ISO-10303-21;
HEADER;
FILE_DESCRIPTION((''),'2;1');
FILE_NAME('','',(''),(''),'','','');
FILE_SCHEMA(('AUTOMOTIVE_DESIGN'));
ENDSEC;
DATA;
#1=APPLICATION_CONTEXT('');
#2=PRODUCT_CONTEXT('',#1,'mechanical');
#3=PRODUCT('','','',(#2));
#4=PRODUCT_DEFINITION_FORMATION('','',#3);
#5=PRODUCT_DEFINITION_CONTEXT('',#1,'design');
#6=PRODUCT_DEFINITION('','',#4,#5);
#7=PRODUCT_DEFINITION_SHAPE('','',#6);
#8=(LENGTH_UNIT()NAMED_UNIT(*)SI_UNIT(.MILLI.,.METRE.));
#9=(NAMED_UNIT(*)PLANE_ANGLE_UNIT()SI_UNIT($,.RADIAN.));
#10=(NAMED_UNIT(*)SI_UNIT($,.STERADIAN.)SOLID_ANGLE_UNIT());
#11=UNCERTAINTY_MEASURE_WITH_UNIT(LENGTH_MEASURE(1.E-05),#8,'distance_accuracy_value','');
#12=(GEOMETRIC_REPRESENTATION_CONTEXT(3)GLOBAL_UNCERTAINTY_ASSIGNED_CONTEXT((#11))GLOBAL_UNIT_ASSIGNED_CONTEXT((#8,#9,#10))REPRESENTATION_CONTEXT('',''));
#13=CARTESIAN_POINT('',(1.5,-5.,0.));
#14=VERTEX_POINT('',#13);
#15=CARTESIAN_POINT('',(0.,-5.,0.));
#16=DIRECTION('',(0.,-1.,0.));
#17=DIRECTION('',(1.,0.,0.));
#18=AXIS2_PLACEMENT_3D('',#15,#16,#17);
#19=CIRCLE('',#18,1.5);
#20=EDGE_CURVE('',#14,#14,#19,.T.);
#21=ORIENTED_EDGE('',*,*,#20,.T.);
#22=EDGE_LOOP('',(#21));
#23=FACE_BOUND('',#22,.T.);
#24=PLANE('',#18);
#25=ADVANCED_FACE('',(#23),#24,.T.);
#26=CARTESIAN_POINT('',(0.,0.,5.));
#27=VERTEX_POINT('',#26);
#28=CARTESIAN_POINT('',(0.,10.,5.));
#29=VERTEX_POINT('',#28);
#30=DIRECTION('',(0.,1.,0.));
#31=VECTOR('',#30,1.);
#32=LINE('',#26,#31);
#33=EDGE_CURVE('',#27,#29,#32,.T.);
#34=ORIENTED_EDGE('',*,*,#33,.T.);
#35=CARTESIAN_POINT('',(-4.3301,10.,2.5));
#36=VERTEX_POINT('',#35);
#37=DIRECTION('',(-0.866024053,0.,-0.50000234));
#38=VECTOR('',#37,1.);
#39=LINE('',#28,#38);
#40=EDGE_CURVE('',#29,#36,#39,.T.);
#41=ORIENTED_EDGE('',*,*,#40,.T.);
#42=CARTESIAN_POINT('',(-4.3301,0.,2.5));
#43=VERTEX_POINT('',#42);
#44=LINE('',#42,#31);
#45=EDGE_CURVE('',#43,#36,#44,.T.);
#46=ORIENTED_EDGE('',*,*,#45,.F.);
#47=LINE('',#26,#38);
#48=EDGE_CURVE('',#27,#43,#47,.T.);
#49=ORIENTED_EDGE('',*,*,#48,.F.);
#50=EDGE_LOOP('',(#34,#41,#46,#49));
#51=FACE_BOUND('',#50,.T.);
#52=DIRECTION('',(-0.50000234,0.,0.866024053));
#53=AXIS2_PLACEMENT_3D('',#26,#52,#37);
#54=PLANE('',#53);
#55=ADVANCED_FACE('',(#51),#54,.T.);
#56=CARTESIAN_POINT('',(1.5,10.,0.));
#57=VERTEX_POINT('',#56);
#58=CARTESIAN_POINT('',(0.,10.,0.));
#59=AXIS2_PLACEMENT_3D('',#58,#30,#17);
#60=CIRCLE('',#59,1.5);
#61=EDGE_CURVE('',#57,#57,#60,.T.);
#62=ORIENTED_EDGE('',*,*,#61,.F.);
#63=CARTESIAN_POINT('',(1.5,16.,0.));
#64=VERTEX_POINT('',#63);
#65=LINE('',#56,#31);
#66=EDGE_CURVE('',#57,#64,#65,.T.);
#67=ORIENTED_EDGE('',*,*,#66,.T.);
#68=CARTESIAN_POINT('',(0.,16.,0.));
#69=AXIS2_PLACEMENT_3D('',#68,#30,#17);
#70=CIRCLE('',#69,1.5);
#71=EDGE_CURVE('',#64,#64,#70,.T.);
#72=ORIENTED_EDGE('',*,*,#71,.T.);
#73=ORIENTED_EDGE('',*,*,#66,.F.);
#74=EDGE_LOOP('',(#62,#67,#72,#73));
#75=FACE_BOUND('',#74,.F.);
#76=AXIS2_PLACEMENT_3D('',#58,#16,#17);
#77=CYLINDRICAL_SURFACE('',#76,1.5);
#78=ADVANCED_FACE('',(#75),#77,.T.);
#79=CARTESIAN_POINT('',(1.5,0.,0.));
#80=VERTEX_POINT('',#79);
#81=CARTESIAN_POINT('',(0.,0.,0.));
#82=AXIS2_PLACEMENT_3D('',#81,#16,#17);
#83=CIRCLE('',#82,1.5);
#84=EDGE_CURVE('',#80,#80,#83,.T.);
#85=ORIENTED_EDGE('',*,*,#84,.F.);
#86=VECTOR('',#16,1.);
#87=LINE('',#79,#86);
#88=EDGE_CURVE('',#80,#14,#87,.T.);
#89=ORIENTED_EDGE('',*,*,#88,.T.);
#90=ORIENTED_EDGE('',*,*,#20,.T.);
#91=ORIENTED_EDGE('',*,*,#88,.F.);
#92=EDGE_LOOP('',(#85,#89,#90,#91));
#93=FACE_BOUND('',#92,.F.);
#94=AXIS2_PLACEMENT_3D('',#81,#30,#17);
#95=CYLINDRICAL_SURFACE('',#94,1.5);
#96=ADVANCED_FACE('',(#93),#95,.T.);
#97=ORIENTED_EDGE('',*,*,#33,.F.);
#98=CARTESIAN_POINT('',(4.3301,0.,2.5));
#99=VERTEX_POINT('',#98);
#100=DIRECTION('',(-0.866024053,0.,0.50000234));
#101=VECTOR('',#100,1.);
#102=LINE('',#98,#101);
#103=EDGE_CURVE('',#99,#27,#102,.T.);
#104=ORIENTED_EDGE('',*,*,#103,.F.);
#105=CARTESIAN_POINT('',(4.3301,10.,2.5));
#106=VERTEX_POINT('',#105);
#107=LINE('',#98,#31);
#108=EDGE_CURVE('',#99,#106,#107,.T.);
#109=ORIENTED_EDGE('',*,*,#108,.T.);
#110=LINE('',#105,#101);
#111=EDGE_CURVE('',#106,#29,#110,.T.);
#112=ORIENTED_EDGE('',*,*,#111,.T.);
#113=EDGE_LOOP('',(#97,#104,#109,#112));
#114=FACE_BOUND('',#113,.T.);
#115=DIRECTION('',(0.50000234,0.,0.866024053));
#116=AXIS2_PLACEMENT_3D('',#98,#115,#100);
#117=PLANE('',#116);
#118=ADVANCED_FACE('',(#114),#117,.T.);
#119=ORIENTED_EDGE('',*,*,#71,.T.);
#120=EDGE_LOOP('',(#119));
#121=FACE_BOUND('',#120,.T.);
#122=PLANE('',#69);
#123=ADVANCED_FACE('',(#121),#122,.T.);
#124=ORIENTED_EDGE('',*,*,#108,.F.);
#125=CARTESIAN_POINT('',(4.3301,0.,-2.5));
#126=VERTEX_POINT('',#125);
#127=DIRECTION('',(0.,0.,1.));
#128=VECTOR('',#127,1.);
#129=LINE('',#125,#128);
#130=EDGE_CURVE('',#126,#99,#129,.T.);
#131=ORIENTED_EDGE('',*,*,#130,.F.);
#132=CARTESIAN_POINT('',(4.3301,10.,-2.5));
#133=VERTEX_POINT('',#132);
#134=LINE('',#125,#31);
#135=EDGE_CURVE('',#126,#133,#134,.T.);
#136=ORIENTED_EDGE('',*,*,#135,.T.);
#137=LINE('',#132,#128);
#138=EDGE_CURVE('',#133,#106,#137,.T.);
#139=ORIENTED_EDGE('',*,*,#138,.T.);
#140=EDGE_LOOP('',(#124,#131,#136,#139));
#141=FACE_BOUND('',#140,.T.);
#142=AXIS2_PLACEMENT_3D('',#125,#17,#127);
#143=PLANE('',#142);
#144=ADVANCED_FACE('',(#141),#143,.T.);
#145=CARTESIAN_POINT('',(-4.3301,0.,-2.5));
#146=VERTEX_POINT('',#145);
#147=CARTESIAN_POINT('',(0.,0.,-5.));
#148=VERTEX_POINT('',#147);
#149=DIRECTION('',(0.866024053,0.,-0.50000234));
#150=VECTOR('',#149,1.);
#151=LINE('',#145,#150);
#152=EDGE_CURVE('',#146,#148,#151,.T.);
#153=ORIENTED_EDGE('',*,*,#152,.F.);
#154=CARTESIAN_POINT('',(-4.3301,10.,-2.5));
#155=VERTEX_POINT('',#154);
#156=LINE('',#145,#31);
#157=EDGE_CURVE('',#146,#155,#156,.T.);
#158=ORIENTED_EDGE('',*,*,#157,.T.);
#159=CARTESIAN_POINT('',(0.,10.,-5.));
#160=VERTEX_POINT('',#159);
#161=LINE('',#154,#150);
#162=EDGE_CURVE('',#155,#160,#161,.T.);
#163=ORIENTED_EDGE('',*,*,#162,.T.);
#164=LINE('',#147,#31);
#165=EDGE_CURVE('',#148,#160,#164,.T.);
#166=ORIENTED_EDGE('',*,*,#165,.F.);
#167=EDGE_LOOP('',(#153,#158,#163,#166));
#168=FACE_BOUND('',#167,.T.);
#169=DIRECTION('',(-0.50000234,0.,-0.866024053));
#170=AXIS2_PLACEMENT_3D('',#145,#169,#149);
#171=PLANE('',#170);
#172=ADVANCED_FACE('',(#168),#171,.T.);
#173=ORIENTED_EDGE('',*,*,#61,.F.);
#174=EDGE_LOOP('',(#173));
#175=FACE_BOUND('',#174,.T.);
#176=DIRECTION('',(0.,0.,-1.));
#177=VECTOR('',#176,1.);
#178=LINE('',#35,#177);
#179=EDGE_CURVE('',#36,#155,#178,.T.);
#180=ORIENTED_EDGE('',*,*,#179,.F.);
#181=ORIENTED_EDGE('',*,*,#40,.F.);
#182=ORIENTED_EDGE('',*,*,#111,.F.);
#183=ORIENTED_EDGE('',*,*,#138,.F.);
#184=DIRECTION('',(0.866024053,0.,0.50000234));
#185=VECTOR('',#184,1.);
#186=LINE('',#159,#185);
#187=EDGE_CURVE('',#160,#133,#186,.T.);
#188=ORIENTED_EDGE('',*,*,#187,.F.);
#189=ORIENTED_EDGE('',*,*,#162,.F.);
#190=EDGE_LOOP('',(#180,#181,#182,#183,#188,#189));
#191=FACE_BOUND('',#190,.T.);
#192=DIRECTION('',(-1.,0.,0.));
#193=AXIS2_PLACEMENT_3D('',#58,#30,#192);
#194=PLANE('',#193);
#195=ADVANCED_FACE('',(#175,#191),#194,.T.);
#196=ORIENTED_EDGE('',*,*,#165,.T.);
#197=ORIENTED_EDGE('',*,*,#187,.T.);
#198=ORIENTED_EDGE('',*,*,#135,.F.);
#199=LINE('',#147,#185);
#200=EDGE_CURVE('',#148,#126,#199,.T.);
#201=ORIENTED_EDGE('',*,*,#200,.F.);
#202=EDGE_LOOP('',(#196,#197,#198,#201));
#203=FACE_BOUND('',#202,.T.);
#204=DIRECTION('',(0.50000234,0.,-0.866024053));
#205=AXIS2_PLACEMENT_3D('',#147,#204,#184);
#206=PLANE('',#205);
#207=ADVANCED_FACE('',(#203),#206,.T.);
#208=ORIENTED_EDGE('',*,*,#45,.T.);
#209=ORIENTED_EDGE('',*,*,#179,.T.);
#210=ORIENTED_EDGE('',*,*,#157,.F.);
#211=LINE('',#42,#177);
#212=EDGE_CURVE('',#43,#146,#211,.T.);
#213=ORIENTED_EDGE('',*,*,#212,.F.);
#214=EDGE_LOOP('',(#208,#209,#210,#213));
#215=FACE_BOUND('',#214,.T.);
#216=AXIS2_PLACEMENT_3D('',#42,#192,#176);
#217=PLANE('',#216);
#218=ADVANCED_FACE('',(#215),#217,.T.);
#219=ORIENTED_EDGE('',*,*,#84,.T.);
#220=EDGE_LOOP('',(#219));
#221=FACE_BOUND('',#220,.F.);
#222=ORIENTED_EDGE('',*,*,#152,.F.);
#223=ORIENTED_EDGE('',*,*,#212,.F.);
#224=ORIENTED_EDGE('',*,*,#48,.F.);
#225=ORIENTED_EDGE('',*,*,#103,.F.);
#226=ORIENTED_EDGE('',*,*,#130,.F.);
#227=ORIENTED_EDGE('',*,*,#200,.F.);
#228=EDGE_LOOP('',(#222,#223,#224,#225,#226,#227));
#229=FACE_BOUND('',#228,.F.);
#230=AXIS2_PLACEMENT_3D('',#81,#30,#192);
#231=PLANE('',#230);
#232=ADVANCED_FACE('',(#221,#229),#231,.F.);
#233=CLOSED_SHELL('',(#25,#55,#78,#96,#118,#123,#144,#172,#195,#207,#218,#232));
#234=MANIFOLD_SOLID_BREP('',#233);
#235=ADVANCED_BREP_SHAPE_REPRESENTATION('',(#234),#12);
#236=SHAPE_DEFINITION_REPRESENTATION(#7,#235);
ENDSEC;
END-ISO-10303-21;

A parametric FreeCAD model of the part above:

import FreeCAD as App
import Part
import Sketcher
Q = App.Units.Quantity


def add_polygon(sketch, points):
    """Adds a closed chain of lines whose ends are joined by coincident constraints."""
    first, n = sketch.GeometryCount, len(points)
    for a, b in zip(points, points[1:] + points[:1]):
        sketch.addGeometry(Part.LineSegment(App.Vector(*a, 0), App.Vector(*b, 0)), False)
    for i in range(n):
        sketch.addConstraint(Sketcher.Constraint("Coincident", first + i, 2, first + (i + 1) % n, 1))

doc = App.newDocument("Part")
params = doc.addObject("Spreadsheet::Sheet", "Params")
for row, (alias, value) in enumerate([
    ("sketch1_height", "5 mm"),
    ("sketch1_length", "5 mm"),
    ("pad1_length", "10 mm"),
    ("sketch2_diameter", "3 mm"),
    ("pad2_length", "6 mm"),
    ("sketch3_diameter", "3 mm"),
    ("pad3_length", "5 mm"),
], start=1):
    params.set(f"A{row}", alias)
    params.set(f"B{row}", "=" + value)
    params.setAlias(f"B{row}", alias)

body = doc.addObject("PartDesign::Body", "Body")

sketch1 = doc.addObject("Sketcher::SketchObject", "Sketch")
body.addObject(sketch1)
sketch1.AttachmentSupport = (doc.XZ_Plane, [""])
sketch1.MapMode = "FlatFace"
add_polygon(sketch1, [(4.3, -2.5), (0, -5), (-4.3, -2.5), (-4.3, 2.5), (0, 5), (4.3, 2.5)])
sketch1.addConstraint([
    Sketcher.Constraint("Vertical", 2),
    Sketcher.Constraint("Vertical", 5),
    Sketcher.Constraint("Symmetric", 0, 2, 3, 2, -1, 1),
    Sketcher.Constraint("Symmetric", 1, 2, 4, 2, -1, 1),
    Sketcher.Constraint("PointOnObject", 0, 2, -2),
    Sketcher.Constraint("Parallel", 0, 3),
    Sketcher.Constraint("Horizontal", 2, 2, 4, 2),
    Sketcher.Constraint("DistanceY", 2, 1, 2, 2, Q("5 mm")),
    Sketcher.Constraint("Distance", 0, Q("5 mm")),
    Sketcher.Constraint("DistanceY", 0, 2, -1, 1, Q("5 mm")),
])
sketch1.setExpression("Constraints[13]", "Params.sketch1_height")
sketch1.setExpression("Constraints[14]", "Params.sketch1_length")
pad1 = doc.addObject("PartDesign::Pad", "Pad")
body.addObject(pad1)
pad1.Profile = sketch1
pad1.setExpression("Length", "Params.pad1_length")
pad1.Reversed = True

sketch2 = doc.addObject("Sketcher::SketchObject", "Sketch001")
body.addObject(sketch2)
sketch2.AttachmentSupport = (doc.XZ_Plane, [""])
sketch2.MapMode = "FlatFace"
sketch2.AttachmentOffset = App.Placement(App.Vector(0, 0, -10), App.Rotation())
sketch2.addGeometry(Part.Circle(App.Vector(0, 0, 0), App.Vector(0, 0, 1), 1.5), False)
sketch2.addConstraint([
    Sketcher.Constraint("Coincident", 0, 3, -1, 1),
    Sketcher.Constraint("Diameter", 0, Q("3 mm")),
])
sketch2.setExpression("Constraints[1]", "Params.sketch2_diameter")
pad2 = doc.addObject("PartDesign::Pad", "Pad001")
body.addObject(pad2)
pad2.Profile = sketch2
pad2.setExpression("Length", "Params.pad2_length")
pad2.Reversed = True

sketch3 = doc.addObject("Sketcher::SketchObject", "Sketch002")
body.addObject(sketch3)
sketch3.AttachmentSupport = (doc.XZ_Plane, [""])
sketch3.MapMode = "FlatFace"
sketch3.addGeometry(Part.Circle(App.Vector(0, 0, 0), App.Vector(0, 0, 1), 1.5), False)
sketch3.addConstraint([
    Sketcher.Constraint("Coincident", 0, 3, -1, 1),
    Sketcher.Constraint("Diameter", 0, Q("3 mm")),
])
sketch3.setExpression("Constraints[1]", "Params.sketch3_diameter")
pad3 = doc.addObject("PartDesign::Pad", "Pad002")
body.addObject(pad3)
pad3.Profile = sketch3
pad3.setExpression("Length", "Params.pad3_length")

doc.recompute()
